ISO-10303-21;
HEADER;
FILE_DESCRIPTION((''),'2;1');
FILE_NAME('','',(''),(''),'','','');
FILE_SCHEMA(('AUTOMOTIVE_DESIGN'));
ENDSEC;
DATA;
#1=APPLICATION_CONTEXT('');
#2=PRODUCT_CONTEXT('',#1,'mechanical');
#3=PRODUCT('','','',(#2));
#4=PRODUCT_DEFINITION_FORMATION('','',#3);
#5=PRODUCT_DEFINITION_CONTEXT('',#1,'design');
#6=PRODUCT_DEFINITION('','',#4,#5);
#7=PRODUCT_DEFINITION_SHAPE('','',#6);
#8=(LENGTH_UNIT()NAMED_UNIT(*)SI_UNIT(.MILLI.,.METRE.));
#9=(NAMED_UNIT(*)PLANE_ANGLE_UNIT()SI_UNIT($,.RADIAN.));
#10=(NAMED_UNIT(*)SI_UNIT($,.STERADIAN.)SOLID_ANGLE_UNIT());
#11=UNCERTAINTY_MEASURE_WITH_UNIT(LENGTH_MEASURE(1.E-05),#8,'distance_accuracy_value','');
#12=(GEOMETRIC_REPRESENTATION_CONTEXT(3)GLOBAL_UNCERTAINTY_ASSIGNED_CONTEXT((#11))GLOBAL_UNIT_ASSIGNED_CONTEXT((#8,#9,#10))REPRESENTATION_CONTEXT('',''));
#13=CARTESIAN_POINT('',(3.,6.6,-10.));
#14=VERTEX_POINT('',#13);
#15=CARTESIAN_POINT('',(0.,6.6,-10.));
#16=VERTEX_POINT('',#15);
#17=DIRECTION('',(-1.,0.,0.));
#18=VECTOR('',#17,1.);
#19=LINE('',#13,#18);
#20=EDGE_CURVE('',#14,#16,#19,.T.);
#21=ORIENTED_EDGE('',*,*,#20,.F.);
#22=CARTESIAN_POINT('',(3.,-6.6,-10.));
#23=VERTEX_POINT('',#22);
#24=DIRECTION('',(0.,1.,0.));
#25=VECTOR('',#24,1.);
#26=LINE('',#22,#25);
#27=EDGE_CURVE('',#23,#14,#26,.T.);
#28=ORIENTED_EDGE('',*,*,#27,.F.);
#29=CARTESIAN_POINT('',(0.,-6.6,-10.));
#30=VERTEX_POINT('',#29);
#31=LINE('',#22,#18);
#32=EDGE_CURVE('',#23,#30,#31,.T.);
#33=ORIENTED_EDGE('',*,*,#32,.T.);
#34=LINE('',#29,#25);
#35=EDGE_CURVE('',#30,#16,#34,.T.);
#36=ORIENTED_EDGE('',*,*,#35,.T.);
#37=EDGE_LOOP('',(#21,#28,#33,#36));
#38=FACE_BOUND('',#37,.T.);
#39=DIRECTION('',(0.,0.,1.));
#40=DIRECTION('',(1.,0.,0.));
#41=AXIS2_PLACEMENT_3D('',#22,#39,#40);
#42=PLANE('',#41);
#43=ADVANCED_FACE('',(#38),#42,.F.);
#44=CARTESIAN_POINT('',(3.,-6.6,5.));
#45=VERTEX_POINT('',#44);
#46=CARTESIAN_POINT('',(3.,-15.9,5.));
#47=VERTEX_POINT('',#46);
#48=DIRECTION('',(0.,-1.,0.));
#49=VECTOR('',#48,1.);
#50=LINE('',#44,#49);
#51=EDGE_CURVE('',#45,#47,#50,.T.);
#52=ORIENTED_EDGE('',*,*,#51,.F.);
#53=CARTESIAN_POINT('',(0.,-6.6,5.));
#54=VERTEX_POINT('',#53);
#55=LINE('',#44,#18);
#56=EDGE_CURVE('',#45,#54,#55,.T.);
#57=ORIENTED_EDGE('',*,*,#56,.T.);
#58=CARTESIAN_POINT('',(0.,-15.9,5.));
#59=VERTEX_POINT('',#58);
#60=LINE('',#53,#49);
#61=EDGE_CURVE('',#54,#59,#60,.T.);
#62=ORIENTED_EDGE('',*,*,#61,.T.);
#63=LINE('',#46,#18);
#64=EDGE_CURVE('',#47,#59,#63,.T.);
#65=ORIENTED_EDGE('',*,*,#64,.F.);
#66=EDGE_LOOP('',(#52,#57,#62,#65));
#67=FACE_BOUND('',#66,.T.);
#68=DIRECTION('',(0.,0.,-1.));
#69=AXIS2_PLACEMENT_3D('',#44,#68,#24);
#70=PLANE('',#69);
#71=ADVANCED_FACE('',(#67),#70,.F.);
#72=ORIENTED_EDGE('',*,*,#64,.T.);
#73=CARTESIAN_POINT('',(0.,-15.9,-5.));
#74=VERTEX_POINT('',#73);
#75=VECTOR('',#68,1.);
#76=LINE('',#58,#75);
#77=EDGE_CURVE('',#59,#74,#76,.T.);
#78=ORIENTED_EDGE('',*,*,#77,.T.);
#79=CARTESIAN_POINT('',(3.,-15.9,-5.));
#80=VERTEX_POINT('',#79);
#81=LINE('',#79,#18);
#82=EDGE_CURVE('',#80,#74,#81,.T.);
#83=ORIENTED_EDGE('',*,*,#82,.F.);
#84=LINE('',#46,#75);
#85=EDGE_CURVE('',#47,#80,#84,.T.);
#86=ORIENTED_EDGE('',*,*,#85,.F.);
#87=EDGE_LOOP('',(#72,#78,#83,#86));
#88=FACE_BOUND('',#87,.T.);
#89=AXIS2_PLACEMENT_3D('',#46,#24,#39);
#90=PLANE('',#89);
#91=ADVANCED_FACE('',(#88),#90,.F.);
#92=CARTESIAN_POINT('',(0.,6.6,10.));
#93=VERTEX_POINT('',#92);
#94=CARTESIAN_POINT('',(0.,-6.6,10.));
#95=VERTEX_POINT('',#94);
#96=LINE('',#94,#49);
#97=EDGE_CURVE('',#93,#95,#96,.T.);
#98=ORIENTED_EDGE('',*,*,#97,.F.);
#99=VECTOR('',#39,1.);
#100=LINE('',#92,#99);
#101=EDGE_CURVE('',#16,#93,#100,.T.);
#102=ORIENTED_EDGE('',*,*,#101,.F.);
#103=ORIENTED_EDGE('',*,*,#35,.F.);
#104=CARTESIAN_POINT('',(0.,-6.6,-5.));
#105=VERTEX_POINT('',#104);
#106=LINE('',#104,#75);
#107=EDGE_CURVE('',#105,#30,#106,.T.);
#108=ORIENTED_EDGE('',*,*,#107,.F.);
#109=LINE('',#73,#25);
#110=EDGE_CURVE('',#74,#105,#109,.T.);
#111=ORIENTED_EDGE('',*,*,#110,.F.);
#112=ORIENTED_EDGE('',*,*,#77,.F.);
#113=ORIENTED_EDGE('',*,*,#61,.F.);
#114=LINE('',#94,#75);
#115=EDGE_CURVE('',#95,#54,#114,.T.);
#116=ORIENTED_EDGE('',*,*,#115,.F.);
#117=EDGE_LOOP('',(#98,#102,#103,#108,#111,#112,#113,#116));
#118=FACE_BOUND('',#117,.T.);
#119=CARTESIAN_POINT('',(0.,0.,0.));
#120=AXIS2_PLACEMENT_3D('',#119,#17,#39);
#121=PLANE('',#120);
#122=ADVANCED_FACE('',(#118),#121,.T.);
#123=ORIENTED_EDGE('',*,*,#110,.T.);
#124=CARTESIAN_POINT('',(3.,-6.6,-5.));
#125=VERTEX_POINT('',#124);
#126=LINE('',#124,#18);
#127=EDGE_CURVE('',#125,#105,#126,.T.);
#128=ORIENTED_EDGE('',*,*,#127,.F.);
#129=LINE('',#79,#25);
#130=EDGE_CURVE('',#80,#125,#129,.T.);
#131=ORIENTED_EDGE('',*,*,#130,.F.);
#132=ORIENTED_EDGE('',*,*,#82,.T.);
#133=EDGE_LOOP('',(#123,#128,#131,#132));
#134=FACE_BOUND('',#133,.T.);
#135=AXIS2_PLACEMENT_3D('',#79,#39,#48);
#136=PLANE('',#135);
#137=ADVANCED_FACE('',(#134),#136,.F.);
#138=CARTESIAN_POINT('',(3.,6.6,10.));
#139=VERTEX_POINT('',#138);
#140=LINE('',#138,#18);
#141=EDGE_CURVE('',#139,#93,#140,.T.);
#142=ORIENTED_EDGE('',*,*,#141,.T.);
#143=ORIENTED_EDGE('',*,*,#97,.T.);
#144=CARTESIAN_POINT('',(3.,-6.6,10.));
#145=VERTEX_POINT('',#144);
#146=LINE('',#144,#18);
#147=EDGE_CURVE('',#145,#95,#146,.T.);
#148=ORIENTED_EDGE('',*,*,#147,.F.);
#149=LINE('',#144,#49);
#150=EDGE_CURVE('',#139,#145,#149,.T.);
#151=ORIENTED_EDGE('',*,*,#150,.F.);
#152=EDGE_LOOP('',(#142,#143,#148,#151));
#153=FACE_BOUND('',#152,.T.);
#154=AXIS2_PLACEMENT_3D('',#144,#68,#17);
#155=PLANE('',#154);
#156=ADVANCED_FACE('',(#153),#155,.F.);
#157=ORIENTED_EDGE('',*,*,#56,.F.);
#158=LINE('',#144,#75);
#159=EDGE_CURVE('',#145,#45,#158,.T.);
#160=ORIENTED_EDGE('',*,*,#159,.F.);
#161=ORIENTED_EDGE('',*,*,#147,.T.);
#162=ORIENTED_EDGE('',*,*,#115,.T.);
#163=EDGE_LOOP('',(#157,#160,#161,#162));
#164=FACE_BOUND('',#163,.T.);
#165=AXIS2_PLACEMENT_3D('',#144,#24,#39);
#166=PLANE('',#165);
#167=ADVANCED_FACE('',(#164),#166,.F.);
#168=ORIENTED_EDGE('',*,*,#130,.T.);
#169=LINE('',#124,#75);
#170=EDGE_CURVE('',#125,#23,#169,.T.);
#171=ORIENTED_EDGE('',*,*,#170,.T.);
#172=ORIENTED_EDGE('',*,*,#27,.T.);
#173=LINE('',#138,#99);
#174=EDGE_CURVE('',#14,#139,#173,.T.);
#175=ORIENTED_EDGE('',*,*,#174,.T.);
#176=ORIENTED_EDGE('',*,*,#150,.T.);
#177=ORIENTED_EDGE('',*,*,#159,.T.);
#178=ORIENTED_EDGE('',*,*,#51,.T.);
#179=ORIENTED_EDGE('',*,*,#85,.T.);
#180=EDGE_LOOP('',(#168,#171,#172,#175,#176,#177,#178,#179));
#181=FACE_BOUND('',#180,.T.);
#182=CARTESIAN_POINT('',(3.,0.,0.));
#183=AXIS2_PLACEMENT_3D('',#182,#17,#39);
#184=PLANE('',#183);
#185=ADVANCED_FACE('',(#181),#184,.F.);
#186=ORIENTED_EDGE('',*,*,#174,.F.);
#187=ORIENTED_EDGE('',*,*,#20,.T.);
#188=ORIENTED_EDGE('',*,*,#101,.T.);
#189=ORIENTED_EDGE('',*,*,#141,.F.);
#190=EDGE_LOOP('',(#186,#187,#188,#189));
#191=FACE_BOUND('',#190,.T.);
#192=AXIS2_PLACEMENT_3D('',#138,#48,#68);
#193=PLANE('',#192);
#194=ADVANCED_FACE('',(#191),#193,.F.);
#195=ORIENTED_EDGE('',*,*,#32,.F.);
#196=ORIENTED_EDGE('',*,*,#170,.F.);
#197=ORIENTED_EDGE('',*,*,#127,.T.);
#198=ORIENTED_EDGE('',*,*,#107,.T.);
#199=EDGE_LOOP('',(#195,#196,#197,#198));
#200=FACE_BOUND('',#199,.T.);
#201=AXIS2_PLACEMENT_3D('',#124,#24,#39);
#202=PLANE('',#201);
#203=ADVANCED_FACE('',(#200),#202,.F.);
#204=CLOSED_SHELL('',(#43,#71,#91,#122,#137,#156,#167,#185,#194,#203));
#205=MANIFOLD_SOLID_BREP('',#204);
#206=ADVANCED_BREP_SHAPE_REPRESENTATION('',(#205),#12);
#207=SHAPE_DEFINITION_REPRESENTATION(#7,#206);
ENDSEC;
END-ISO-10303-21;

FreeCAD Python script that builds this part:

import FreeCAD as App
import Part
import Sketcher
from FreeCAD import Vector

doc = App.newDocument("Part")
body = doc.addObject("PartDesign::Body", "Body")

sketch1 = body.newObject("Sketcher::SketchObject", "Sketch")
sketch1.AttachmentSupport = (doc.getObject("YZ_Plane"), [""])
sketch1.MapMode = "FlatFace"
sketch1.addGeometry(Part.LineSegment(Vector(-6.6, 5, 0), Vector(-15.9, 5, 0)), False)
sketch1.addGeometry(Part.LineSegment(Vector(-15.9, 5, 0), Vector(-15.9, -5, 0)), False)
sketch1.addGeometry(Part.LineSegment(Vector(-15.9, -5, 0), Vector(-6.6, -5, 0)), False)
sketch1.addGeometry(Part.LineSegment(Vector(-6.6, -5, 0), Vector(-6.6, -10, 0)), False)
sketch1.addGeometry(Part.LineSegment(Vector(-6.6, -10, 0), Vector(6.6, -10, 0)), False)
sketch1.addGeometry(Part.LineSegment(Vector(6.6, -10, 0), Vector(6.6, 10, 0)), False)
sketch1.addGeometry(Part.LineSegment(Vector(6.6, 10, 0), Vector(-6.6, 10, 0)), False)
sketch1.addGeometry(Part.LineSegment(Vector(-6.6, 10, 0), Vector(-6.6, 5, 0)), False)
sketch1.addConstraint(Sketcher.Constraint("Coincident", 0, 2, 1, 1))
sketch1.addConstraint(Sketcher.Constraint("Coincident", 1, 2, 2, 1))
sketch1.addConstraint(Sketcher.Constraint("Coincident", 2, 2, 3, 1))
sketch1.addConstraint(Sketcher.Constraint("Coincident", 3, 2, 4, 1))
sketch1.addConstraint(Sketcher.Constraint("Coincident", 4, 2, 5, 1))
sketch1.addConstraint(Sketcher.Constraint("Coincident", 5, 2, 6, 1))
sketch1.addConstraint(Sketcher.Constraint("Coincident", 6, 2, 7, 1))
sketch1.addConstraint(Sketcher.Constraint("Coincident", 7, 2, 0, 1))
sketch1.addConstraint(Sketcher.Constraint("Horizontal", 0))
sketch1.addConstraint(Sketcher.Constraint("Vertical", 1))
sketch1.addConstraint(Sketcher.Constraint("Horizontal", 2))
sketch1.addConstraint(Sketcher.Constraint("Vertical", 3))
sketch1.addConstraint(Sketcher.Constraint("Horizontal", 4))
sketch1.addConstraint(Sketcher.Constraint("Vertical", 5))
sketch1.addConstraint(Sketcher.Constraint("Horizontal", 6))
sketch1.addConstraint(Sketcher.Constraint("Vertical", 7))
sketch1.addConstraint(Sketcher.Constraint("Symmetric", 3, 2, 5, 2, -1, 1))
sketch1.addConstraint(Sketcher.Constraint("Symmetric", 2, 2, 7, 2, -1))
sketch1.addConstraint(Sketcher.Constraint("DistanceY", 1, 2, 1, 1, 10.0))
sketch1.addConstraint(Sketcher.Constraint("DistanceY", 3, 2, 3, 1, 5.0))
sketch1.addConstraint(Sketcher.Constraint("DistanceX", 0, 2, 0, 1, 9.3))
sketch1.addConstraint(Sketcher.Constraint("DistanceX", 4, 1, 4, 2, 13.2))
pad1 = body.newObject("PartDesign::Pad", "Pad")
pad1.Profile = sketch1
pad1.Length = 3

doc.recompute()
